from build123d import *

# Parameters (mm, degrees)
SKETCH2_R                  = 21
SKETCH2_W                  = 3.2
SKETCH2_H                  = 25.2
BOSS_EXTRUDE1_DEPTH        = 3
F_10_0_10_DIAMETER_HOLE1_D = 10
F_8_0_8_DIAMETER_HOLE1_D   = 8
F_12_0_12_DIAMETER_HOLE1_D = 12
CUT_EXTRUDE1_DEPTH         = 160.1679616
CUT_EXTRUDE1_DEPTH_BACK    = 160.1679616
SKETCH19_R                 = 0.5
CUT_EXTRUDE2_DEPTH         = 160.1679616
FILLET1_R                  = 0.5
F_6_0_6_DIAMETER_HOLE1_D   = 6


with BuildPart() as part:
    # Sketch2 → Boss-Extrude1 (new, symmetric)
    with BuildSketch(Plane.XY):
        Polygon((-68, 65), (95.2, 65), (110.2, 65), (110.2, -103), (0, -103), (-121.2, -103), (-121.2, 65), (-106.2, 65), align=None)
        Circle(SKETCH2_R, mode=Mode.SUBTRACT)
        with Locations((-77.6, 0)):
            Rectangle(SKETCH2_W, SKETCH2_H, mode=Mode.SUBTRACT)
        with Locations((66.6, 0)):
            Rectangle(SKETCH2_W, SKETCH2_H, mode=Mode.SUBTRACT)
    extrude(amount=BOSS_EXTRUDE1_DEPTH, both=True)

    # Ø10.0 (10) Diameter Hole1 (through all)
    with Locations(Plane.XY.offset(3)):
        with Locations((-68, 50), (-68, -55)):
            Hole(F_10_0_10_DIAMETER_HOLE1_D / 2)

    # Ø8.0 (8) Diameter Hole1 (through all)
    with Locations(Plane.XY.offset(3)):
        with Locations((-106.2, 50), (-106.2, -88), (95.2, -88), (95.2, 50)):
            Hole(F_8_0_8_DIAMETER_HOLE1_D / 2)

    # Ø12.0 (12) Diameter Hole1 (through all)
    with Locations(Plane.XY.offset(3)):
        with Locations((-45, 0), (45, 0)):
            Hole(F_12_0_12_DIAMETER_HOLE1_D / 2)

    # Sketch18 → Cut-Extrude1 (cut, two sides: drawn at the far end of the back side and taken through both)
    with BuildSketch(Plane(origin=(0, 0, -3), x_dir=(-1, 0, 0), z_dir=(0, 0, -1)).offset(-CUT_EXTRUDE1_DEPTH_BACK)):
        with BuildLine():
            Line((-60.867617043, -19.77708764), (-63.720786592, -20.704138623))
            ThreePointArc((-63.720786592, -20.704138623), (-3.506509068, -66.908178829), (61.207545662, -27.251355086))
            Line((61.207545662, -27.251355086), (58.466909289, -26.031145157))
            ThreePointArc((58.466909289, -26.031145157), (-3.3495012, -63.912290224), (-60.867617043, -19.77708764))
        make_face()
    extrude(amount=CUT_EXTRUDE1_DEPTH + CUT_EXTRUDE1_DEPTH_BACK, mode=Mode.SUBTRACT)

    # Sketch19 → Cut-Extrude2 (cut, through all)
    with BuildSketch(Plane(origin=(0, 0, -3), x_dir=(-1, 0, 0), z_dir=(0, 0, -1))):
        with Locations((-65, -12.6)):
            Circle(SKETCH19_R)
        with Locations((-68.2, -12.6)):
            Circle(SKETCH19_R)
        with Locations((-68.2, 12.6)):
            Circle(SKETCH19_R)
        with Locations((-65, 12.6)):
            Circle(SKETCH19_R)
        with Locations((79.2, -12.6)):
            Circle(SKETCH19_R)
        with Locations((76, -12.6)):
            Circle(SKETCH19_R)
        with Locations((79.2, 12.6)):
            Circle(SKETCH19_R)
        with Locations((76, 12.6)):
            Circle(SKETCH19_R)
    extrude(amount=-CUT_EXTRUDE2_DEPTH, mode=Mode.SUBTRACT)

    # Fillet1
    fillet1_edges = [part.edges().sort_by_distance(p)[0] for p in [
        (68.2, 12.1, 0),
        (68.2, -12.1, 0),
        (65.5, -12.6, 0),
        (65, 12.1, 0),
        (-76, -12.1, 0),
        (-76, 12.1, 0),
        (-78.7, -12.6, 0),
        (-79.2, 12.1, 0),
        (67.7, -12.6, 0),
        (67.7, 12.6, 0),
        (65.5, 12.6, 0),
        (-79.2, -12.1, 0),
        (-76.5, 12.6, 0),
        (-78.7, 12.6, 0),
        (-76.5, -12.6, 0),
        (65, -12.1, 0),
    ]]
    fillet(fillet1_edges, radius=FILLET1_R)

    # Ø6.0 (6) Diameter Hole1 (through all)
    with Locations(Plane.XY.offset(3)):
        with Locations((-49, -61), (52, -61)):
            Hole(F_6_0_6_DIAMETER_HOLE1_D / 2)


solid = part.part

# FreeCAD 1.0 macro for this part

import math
import FreeCAD as App
import Part
import Sketcher
Q = App.Units.Quantity


def edges_at(feature, points):
    """Names of the edges that pass closest to the given points."""
    edges = feature.Shape.Edges
    near = lambda p: min(range(len(edges)), key=lambda i: edges[i].distToShape(Part.Vertex(*p))[0])
    return sorted({f"Edge{near(p) + 1}" for p in points})


def add_polygon(sketch, points):
    """Adds a closed chain of lines whose ends are joined by coincident constraints."""
    first, n = sketch.GeometryCount, len(points)
    for a, b in zip(points, points[1:] + points[:1]):
        sketch.addGeometry(Part.LineSegment(App.Vector(*a, 0), App.Vector(*b, 0)), False)
    for i in range(n):
        sketch.addConstraint(Sketcher.Constraint("Coincident", first + i, 2, first + (i + 1) % n, 1))

doc = App.newDocument("Part")
body = doc.addObject("PartDesign::Body", "Body")

sketch1 = doc.addObject("Sketcher::SketchObject", "Sketch")
body.addObject(sketch1)
sketch1.AttachmentSupport = (doc.XY_Plane, [""])
sketch1.MapMode = "FlatFace"
add_polygon(sketch1, [(110.2, 65), (-121.2, 65), (-121.2, -103), (110.2, -103)])
add_polygon(sketch1, [(65, -12.6), (65, 12.6), (68.2, 12.6), (68.2, -12.6)])
sketch1.addGeometry(Part.Circle(App.Vector(0, 0, 0), App.Vector(0, 0, 1), 21), False)
add_polygon(sketch1, [(-79.2, -12.6), (-79.2, 12.6), (-76, 12.6), (-76, -12.6)])
sketch1.addConstraint([
    Sketcher.Constraint("Horizontal", 0),
    Sketcher.Constraint("Vertical", 1),
    Sketcher.Constraint("Horizontal", 2),
    Sketcher.Constraint("Vertical", 3),
    Sketcher.Constraint("Vertical", 4),
    Sketcher.Constraint("Horizontal", 5),
    Sketcher.Constraint("Vertical", 6),
    Sketcher.Constraint("Horizontal", 7),
    Sketcher.Constraint("Vertical", 9),
    Sketcher.Constraint("Horizontal", 10),
    Sketcher.Constraint("Vertical", 11),
    Sketcher.Constraint("Horizontal", 12),
    Sketcher.Constraint("Coincident", 8, 3, -1, 1),
    Sketcher.Constraint("Horizontal", 5, 2, 9, 2),
    Sketcher.Constraint("Horizontal", 7, 2, 11, 2),
    Sketcher.Constraint("Equal", 7, 10),
    Sketcher.Constraint("Diameter", 8, Q("42 mm")),
    Sketcher.Constraint("DistanceY", 1, 2, 1, 1, Q("168 mm")),
    Sketcher.Constraint("DistanceX", 0, 2, 0, 1, Q("231.4 mm")),
    Sketcher.Constraint("DistanceX", 5, 1, 5, 2, Q("3.2 mm")),
    Sketcher.Constraint("DistanceY", 4, 1, 4, 2, Q("25.2 mm")),
    Sketcher.Constraint("DistanceY", -1, 1, 0, 2, Q("65 mm")),
    Sketcher.Constraint("DistanceX", -1, 1, 4, 2, Q("65 mm")),
    Sketcher.Constraint("DistanceX", 10, 2, -1, 1, Q("76 mm")),
    Sketcher.Constraint("DistanceX", 5, 2, 3, 2, Q("42 mm")),
    Sketcher.Constraint("DistanceY", -1, 1, 4, 2, Q("12.6 mm")),
])
pad1 = doc.addObject("PartDesign::Pad", "Pad")
body.addObject(pad1)
pad1.Profile = sketch1
pad1.Length = 6
pad1.Midplane = True

sketch2 = doc.addObject("Sketcher::SketchObject", "Sketch001")
body.addObject(sketch2)
sketch2.AttachmentSupport = (doc.XY_Plane, [""])
sketch2.MapMode = "FlatFace"
sketch2.AttachmentOffset = App.Placement(App.Vector(0, 0, 3), App.Rotation())
sketch2.addGeometry([
    Part.Circle(App.Vector(-68, 50, 0), App.Vector(0, 0, 1), 5),
    Part.Circle(App.Vector(-68, -55, 0), App.Vector(0, 0, 1), 5),
], False)
sketch2.addConstraint([
    Sketcher.Constraint("Equal", 0, 1),
    Sketcher.Constraint("Vertical", 0, 3, 1, 3),
    Sketcher.Constraint("Diameter", 0, Q("10 mm")),
    Sketcher.Constraint("DistanceX", 0, 3, -1, 1, Q("68 mm")),
    Sketcher.Constraint("DistanceY", -1, 1, 0, 3, Q("50 mm")),
    Sketcher.Constraint("DistanceY", 1, 3, -1, 1, Q("55 mm")),
])
doc.recompute()
hole = doc.addObject("PartDesign::Hole", "Hole")
body.addObject(hole)
hole.Profile = sketch2
hole.ThreadType = "None"
hole.Diameter = 10
hole.DepthType = "ThroughAll"

sketch3 = doc.addObject("Sketcher::SketchObject", "Sketch002")
body.addObject(sketch3)
sketch3.AttachmentSupport = (doc.XY_Plane, [""])
sketch3.MapMode = "FlatFace"
sketch3.AttachmentOffset = App.Placement(App.Vector(0, 0, 3), App.Rotation())
sketch3.addGeometry([
    Part.Circle(App.Vector(-106.2, 50, 0), App.Vector(0, 0, 1), 4),
    Part.Circle(App.Vector(-106.2, -88, 0), App.Vector(0, 0, 1), 4),
    Part.Circle(App.Vector(95.2, -88, 0), App.Vector(0, 0, 1), 4),
    Part.Circle(App.Vector(95.2, 50, 0), App.Vector(0, 0, 1), 4),
], False)
sketch3.addConstraint([
    Sketcher.Constraint("Equal", 0, 1),
    Sketcher.Constraint("Equal", 1, 2),
    Sketcher.Constraint("Equal", 2, 3),
    Sketcher.Constraint("Horizontal", 1, 3, 2, 3),
    Sketcher.Constraint("Horizontal", 0, 3, 3, 3),
    Sketcher.Constraint("Vertical", 0, 3, 1, 3),
    Sketcher.Constraint("Vertical", 2, 3, 3, 3),
    Sketcher.Constraint("Diameter", 0, Q("8 mm")),
    Sketcher.Constraint("DistanceY", -1, 1, 0, 3, Q("50 mm")),
    Sketcher.Constraint("DistanceY", 1, 3, -1, 1, Q("88 mm")),
    Sketcher.Constraint("DistanceX", 0, 3, -1, 1, Q("106.2 mm")),
    Sketcher.Constraint("DistanceX", -1, 1, 2, 3, Q("95.2 mm")),
])
doc.recompute()
hole2 = doc.addObject("PartDesign::Hole", "Hole001")
body.addObject(hole2)
hole2.Profile = sketch3
hole2.ThreadType = "None"
hole2.Diameter = 8
hole2.DepthType = "ThroughAll"

sketch4 = doc.addObject("Sketcher::SketchObject", "Sketch003")
body.addObject(sketch4)
sketch4.AttachmentSupport = (doc.XY_Plane, [""])
sketch4.MapMode = "FlatFace"
sketch4.AttachmentOffset = App.Placement(App.Vector(0, 0, 3), App.Rotation())
sketch4.addGeometry([
    Part.Circle(App.Vector(-45, 0, 0), App.Vector(0, 0, 1), 6),
    Part.Circle(App.Vector(45, 0, 0), App.Vector(0, 0, 1), 6),
], False)
sketch4.addConstraint([
    Sketcher.Constraint("Equal", 0, 1),
    Sketcher.Constraint("Symmetric", 0, 3, 1, 3, -1, 1),
    Sketcher.Constraint("PointOnObject", 0, 3, -1),
    Sketcher.Constraint("Diameter", 0, Q("12 mm")),
    Sketcher.Constraint("DistanceX", 0, 3, -1, 1, Q("45 mm")),
])
doc.recompute()
hole3 = doc.addObject("PartDesign::Hole", "Hole002")
body.addObject(hole3)
hole3.Profile = sketch4
hole3.ThreadType = "None"
hole3.Diameter = 12
hole3.DepthType = "ThroughAll"

sketch5 = doc.addObject("Sketcher::SketchObject", "Sketch004")
body.addObject(sketch5)
sketch5.AttachmentSupport = (doc.XY_Plane, [""])
sketch5.MapMode = "FlatFace"
sketch5.AttachmentOffset = App.Placement(App.Vector(0, 0, -3), App.Rotation())
sketch5.addGeometry([
    Part.LineSegment(App.Vector(60.9, -19.8, 0), App.Vector(63.7, -20.7, 0)),
    Part.ArcOfCircle(Part.Circle(App.Vector(0, 0, 0), App.Vector(0, 0, 1), 67), math.radians(-156), math.radians(-18)),
    Part.LineSegment(App.Vector(-61.2, -27.3, 0), App.Vector(-58.5, -26, 0)),
    Part.ArcOfCircle(Part.Circle(App.Vector(0, 0, 0), App.Vector(0, 0, 1), 64), math.radians(-156), math.radians(-18)),
], False)
sketch5.addConstraint([
    Sketcher.Constraint("Coincident", 0, 2, 1, 2),
    Sketcher.Constraint("Coincident", 1, 1, 2, 1),
    Sketcher.Constraint("Coincident", 2, 2, 3, 1),
    Sketcher.Constraint("Coincident", 3, 2, 0, 1),
    Sketcher.Constraint("Coincident", 1, 3, -1, 1),
    Sketcher.Constraint("Coincident", 3, 3, -1, 1),
    Sketcher.Constraint("Radius", 1, Q("67 mm")),
    Sketcher.Constraint("Radius", 3, Q("64 mm")),
    Sketcher.Constraint("Angle", 0, Q("-18 deg")),
    Sketcher.Constraint("Angle", 2, Q("24 deg")),
    Sketcher.Constraint("DistanceY", 0, 2, -1, 1, Q("20.704139 mm")),
    Sketcher.Constraint("DistanceX", 2, 2, -1, 1, Q("58.466909 mm")),
])
pocket1 = doc.addObject("PartDesign::Pocket", "Pocket")
body.addObject(pocket1)
pocket1.Profile = sketch5
pocket1.Type = "ThroughAll"
pocket1.Midplane = True

sketch6 = doc.addObject("Sketcher::SketchObject", "Sketch005")
body.addObject(sketch6)
sketch6.AttachmentSupport = (doc.XY_Plane, [""])
sketch6.MapMode = "FlatFace"
sketch6.AttachmentOffset = App.Placement(App.Vector(0, 0, -3), App.Rotation())
sketch6.addGeometry([
    Part.Circle(App.Vector(65, -12.6, 0), App.Vector(0, 0, 1), 0.5),
    Part.Circle(App.Vector(68.2, -12.6, 0), App.Vector(0, 0, 1), 0.5),
    Part.Circle(App.Vector(68.2, 12.6, 0), App.Vector(0, 0, 1), 0.5),
    Part.Circle(App.Vector(65, 12.6, 0), App.Vector(0, 0, 1), 0.5),
    Part.Circle(App.Vector(-79.2, -12.6, 0), App.Vector(0, 0, 1), 0.5),
    Part.Circle(App.Vector(-76, -12.6, 0), App.Vector(0, 0, 1), 0.5),
    Part.Circle(App.Vector(-79.2, 12.6, 0), App.Vector(0, 0, 1), 0.5),
    Part.Circle(App.Vector(-76, 12.6, 0), App.Vector(0, 0, 1), 0.5),
], False)
sketch6.addConstraint([
    Sketcher.Constraint("Equal", 0, 1),
    Sketcher.Constraint("Equal", 1, 2),
    Sketcher.Constraint("Equal", 2, 3),
    Sketcher.Constraint("Equal", 3, 4),
    Sketcher.Constraint("Equal", 4, 5),
    Sketcher.Constraint("Equal", 5, 6),
    Sketcher.Constraint("Equal", 6, 7),
    Sketcher.Constraint("Symmetric", 1, 3, 2, 3, -1),
    Sketcher.Constraint("Symmetric", 0, 3, 3, 3, -1),
    Sketcher.Constraint("Symmetric", 4, 3, 6, 3, -1),
    Sketcher.Constraint("Symmetric", 5, 3, 7, 3, -1),
    Sketcher.Constraint("Horizontal", 0, 3, 1, 3),
    Sketcher.Constraint("Horizontal", 1, 3, 4, 3),
    Sketcher.Constraint("Horizontal", 4, 3, 5, 3),
    Sketcher.Constraint("Diameter", 0, Q("1 mm")),
    Sketcher.Constraint("DistanceX", -1, 1, 0, 3, Q("65 mm")),
    Sketcher.Constraint("DistanceX", 5, 3, -1, 1, Q("76 mm")),
    Sketcher.Constraint("DistanceY", 0, 3, -1, 1, Q("12.6 mm")),
    Sketcher.Constraint("DistanceX", -1, 1, 1, 3, Q("68.2 mm")),
    Sketcher.Constraint("DistanceX", 4, 3, -1, 1, Q("79.2 mm")),
])
pocket2 = doc.addObject("PartDesign::Pocket", "Pocket001")
body.addObject(pocket2)
pocket2.Profile = sketch6
pocket2.Type = "ThroughAll"
pocket2.Reversed = True
doc.recompute()

fillet = doc.addObject("PartDesign::Fillet", "Fillet")
body.addObject(fillet)
fillet.Base = (pocket2, edges_at(pocket2, [
    (68.2, 12.1, 0),
    (68.2, -12.1, 0),
    (65.5, -12.6, 0),
    (65, 12.1, 0),
    (-76, -12.1, 0),
    (-76, 12.1, 0),
    (-78.7, -12.6, 0),
    (-79.2, 12.1, 0),
    (67.7, -12.6, 0),
    (67.7, 12.6, 0),
    (65.5, 12.6, 0),
    (-79.2, -12.1, 0),
    (-76.5, 12.6, 0),
    (-78.7, 12.6, 0),
    (-76.5, -12.6, 0),
    (65, -12.1, 0),
]))
fillet.Radius = 0.5

sketch7 = doc.addObject("Sketcher::SketchObject", "Sketch006")
body.addObject(sketch7)
sketch7.AttachmentSupport = (doc.XY_Plane, [""])
sketch7.MapMode = "FlatFace"
sketch7.AttachmentOffset = App.Placement(App.Vector(0, 0, 3), App.Rotation())
sketch7.addGeometry([
    Part.Circle(App.Vector(-49, -61, 0), App.Vector(0, 0, 1), 3),
    Part.Circle(App.Vector(52, -61, 0), App.Vector(0, 0, 1), 3),
], False)
sketch7.addConstraint([
    Sketcher.Constraint("Equal", 0, 1),
    Sketcher.Constraint("Horizontal", 0, 3, 1, 3),
    Sketcher.Constraint("Diameter", 0, Q("6 mm")),
    Sketcher.Constraint("DistanceX", 0, 3, -1, 1, Q("49 mm")),
    Sketcher.Constraint("DistanceY", 0, 3, -1, 1, Q("61 mm")),
    Sketcher.Constraint("DistanceX", -1, 1, 1, 3, Q("52 mm")),
])
doc.recompute()
hole4 = doc.addObject("PartDesign::Hole", "Hole003")
body.addObject(hole4)
hole4.Profile = sketch7
hole4.ThreadType = "None"
hole4.Diameter = 6
hole4.DepthType = "ThroughAll"

doc.recompute()
